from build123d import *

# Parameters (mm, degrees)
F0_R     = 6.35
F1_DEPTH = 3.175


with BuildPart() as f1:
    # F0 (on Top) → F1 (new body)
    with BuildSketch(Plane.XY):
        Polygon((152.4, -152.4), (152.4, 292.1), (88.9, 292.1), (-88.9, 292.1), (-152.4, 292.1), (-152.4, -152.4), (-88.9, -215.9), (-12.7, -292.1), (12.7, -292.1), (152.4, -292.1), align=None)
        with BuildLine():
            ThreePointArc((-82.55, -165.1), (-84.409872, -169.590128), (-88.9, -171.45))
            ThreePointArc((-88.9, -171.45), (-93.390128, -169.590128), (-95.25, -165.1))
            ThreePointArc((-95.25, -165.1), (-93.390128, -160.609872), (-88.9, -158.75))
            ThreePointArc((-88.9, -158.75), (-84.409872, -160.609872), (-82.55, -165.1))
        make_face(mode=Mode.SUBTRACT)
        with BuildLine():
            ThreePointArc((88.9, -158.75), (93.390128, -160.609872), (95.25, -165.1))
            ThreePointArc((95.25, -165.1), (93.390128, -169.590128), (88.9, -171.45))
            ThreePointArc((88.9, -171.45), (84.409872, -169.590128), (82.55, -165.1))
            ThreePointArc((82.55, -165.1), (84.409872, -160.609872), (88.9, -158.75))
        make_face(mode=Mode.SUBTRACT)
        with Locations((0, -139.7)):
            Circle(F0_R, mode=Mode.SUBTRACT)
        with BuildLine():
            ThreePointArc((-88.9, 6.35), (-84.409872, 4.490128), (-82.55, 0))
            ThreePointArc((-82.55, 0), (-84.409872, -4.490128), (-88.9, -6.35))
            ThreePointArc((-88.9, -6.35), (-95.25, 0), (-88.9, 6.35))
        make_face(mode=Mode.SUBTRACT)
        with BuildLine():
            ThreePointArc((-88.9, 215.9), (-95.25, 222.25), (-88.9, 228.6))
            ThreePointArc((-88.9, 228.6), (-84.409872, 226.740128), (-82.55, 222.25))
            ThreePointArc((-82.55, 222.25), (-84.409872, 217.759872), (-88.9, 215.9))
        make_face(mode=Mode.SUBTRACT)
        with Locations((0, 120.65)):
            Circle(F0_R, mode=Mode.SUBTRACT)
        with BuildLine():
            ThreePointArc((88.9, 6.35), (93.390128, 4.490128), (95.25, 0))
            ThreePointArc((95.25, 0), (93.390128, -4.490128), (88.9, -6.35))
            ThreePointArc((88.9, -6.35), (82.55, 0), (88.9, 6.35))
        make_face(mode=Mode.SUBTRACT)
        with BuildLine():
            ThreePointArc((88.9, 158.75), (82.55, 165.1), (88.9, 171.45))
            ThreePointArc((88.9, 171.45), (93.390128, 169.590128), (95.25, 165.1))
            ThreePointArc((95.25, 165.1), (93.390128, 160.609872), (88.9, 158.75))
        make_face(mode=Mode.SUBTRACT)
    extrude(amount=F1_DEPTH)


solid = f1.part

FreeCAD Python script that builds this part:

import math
import FreeCAD as App
import Part
import Sketcher
Q = App.Units.Quantity


def add_polygon(sketch, points):
    """Adds a closed chain of lines whose ends are joined by coincident constraints."""
    first, n = sketch.GeometryCount, len(points)
    for a, b in zip(points, points[1:] + points[:1]):
        sketch.addGeometry(Part.LineSegment(App.Vector(*a, 0), App.Vector(*b, 0)), False)
    for i in range(n):
        sketch.addConstraint(Sketcher.Constraint("Coincident", first + i, 2, first + (i + 1) % n, 1))

doc = App.newDocument("Part")
body = doc.addObject("PartDesign::Body", "Body")

# Sketch on XY plane
sketch1 = body.newObject("Sketcher::SketchObject", "Sketch")
sketch1.AttachmentSupport = (doc.getObject("XY_Plane"), [""])
sketch1.MapMode = "FlatFace"
add_polygon(sketch1, [(152, 292), (-152, 292), (-152, -152), (-13, -292), (152, -292)])  # lines 0-4
sketch1.addGeometry(Part.ArcOfCircle(Part.Circle(App.Vector(-89, -165, 0), App.Vector(0, 0, 1), 6), math.radians(0), math.radians(90)), False)  # 5
sketch1.addGeometry(Part.ArcOfCircle(Part.Circle(App.Vector(-89, -165, 0), App.Vector(0, 0, 1), 6), math.radians(-90), math.radians(0)), False)  # 6
sketch1.addGeometry(Part.ArcOfCircle(Part.Circle(App.Vector(-89, -165, 0), App.Vector(0, 0, 1), 6), math.radians(-180), math.radians(-90)), False)  # 7
sketch1.addGeometry(Part.ArcOfCircle(Part.Circle(App.Vector(-89, -165, 0), App.Vector(0, 0, 1), 6), math.radians(90), math.radians(180)), False)  # 8
sketch1.addGeometry(Part.ArcOfCircle(Part.Circle(App.Vector(-89, 0, 0), App.Vector(0, 0, 1), 6), math.radians(90), math.radians(270)), False)  # 9
sketch1.addGeometry(Part.ArcOfCircle(Part.Circle(App.Vector(-89, 0, 0), App.Vector(0, 0, 1), 6), math.radians(0), math.radians(90)), False)  # 10
sketch1.addGeometry(Part.ArcOfCircle(Part.Circle(App.Vector(-89, 0, 0), App.Vector(0, 0, 1), 6), math.radians(-90), math.radians(0)), False)  # 11
sketch1.addGeometry(Part.Circle(App.Vector(0, -140, 0), App.Vector(0, 0, 1), 6), False)  # 12
sketch1.addGeometry(Part.ArcOfCircle(Part.Circle(App.Vector(89, -165, 0), App.Vector(0, 0, 1), 6), math.radians(90), math.radians(180)), False)  # 13
sketch1.addGeometry(Part.ArcOfCircle(Part.Circle(App.Vector(89, -165, 0), App.Vector(0, 0, 1), 6), math.radians(0), math.radians(90)), False)  # 14
sketch1.addGeometry(Part.ArcOfCircle(Part.Circle(App.Vector(89, -165, 0), App.Vector(0, 0, 1), 6), math.radians(-90), math.radians(0)), False)  # 15
sketch1.addGeometry(Part.ArcOfCircle(Part.Circle(App.Vector(89, -165, 0), App.Vector(0, 0, 1), 6), math.radians(-180), math.radians(-90)), False)  # 16
sketch1.addGeometry(Part.ArcOfCircle(Part.Circle(App.Vector(89, 0, 0), App.Vector(0, 0, 1), 6), math.radians(90), math.radians(270)), False)  # 17
sketch1.addGeometry(Part.ArcOfCircle(Part.Circle(App.Vector(89, 0, 0), App.Vector(0, 0, 1), 6), math.radians(0), math.radians(90)), False)  # 18
sketch1.addGeometry(Part.ArcOfCircle(Part.Circle(App.Vector(89, 0, 0), App.Vector(0, 0, 1), 6), math.radians(-90), math.radians(0)), False)  # 19
sketch1.addGeometry(Part.ArcOfCircle(Part.Circle(App.Vector(-89, 222, 0), App.Vector(0, 0, 1), 6), math.radians(-90), math.radians(0)), False)  # 20
sketch1.addGeometry(Part.ArcOfCircle(Part.Circle(App.Vector(-89, 222, 0), App.Vector(0, 0, 1), 6), math.radians(90), math.radians(270)), False)  # 21
sketch1.addGeometry(Part.ArcOfCircle(Part.Circle(App.Vector(-89, 222, 0), App.Vector(0, 0, 1), 6), math.radians(0), math.radians(90)), False)  # 22
sketch1.addGeometry(Part.Circle(App.Vector(0, 121, 0), App.Vector(0, 0, 1), 6), False)  # 23
sketch1.addGeometry(Part.ArcOfCircle(Part.Circle(App.Vector(89, 165, 0), App.Vector(0, 0, 1), 6), math.radians(-90), math.radians(0)), False)  # 24
sketch1.addGeometry(Part.ArcOfCircle(Part.Circle(App.Vector(89, 165, 0), App.Vector(0, 0, 1), 6), math.radians(90), math.radians(270)), False)  # 25
sketch1.addGeometry(Part.ArcOfCircle(Part.Circle(App.Vector(89, 165, 0), App.Vector(0, 0, 1), 6), math.radians(0), math.radians(90)), False)  # 26
sketch1.addConstraint(Sketcher.Constraint("Tangent", 5, 1, 6, 2))
sketch1.addConstraint(Sketcher.Constraint("Tangent", 6, 1, 7, 2))
sketch1.addConstraint(Sketcher.Constraint("Tangent", 7, 1, 8, 2))
sketch1.addConstraint(Sketcher.Constraint("Tangent", 8, 1, 5, 2))
sketch1.addConstraint(Sketcher.Constraint("Tangent", 9, 1, 10, 2))
sketch1.addConstraint(Sketcher.Constraint("Tangent", 10, 1, 11, 2))
sketch1.addConstraint(Sketcher.Constraint("Tangent", 11, 1, 9, 2))
sketch1.addConstraint(Sketcher.Constraint("Tangent", 13, 1, 14, 2))
sketch1.addConstraint(Sketcher.Constraint("Tangent", 14, 1, 15, 2))
sketch1.addConstraint(Sketcher.Constraint("Tangent", 15, 1, 16, 2))
sketch1.addConstraint(Sketcher.Constraint("Tangent", 16, 1, 13, 2))
sketch1.addConstraint(Sketcher.Constraint("Tangent", 17, 1, 18, 2))
sketch1.addConstraint(Sketcher.Constraint("Tangent", 18, 1, 19, 2))
sketch1.addConstraint(Sketcher.Constraint("Tangent", 19, 1, 17, 2))
sketch1.addConstraint(Sketcher.Constraint("Tangent", 20, 1, 21, 2))
sketch1.addConstraint(Sketcher.Constraint("Tangent", 21, 1, 22, 2))
sketch1.addConstraint(Sketcher.Constraint("Tangent", 22, 1, 20, 2))
sketch1.addConstraint(Sketcher.Constraint("Tangent", 24, 1, 25, 2))
sketch1.addConstraint(Sketcher.Constraint("Tangent", 25, 1, 26, 2))
sketch1.addConstraint(Sketcher.Constraint("Tangent", 26, 1, 24, 2))
sketch1.addConstraint(Sketcher.Constraint("Horizontal", 0))
sketch1.addConstraint(Sketcher.Constraint("Vertical", 1))
sketch1.addConstraint(Sketcher.Constraint("Horizontal", 3))
sketch1.addConstraint(Sketcher.Constraint("Vertical", 4))
sketch1.addConstraint(Sketcher.Constraint("Equal", 5, 6))
sketch1.addConstraint(Sketcher.Constraint("Equal", 8, 9))
sketch1.addConstraint(Sketcher.Constraint("Equal", 11, 12))
sketch1.addConstraint(Sketcher.Constraint("Equal", 12, 13))
sketch1.addConstraint(Sketcher.Constraint("Equal", 13, 14))
sketch1.addConstraint(Sketcher.Constraint("Equal", 16, 17))
sketch1.addConstraint(Sketcher.Constraint("Equal", 19, 20))
sketch1.addConstraint(Sketcher.Constraint("Equal", 22, 23))
sketch1.addConstraint(Sketcher.Constraint("Equal", 23, 24))
sketch1.addConstraint(Sketcher.Constraint("Symmetric", 9, 3, 17, 3, -1, 1))
sketch1.addConstraint(Sketcher.Constraint("Symmetric", 5, 3, 24, 3, -1, 1))
sketch1.addConstraint(Sketcher.Constraint("Symmetric", 0, 2, 3, 2, -1, 1))
sketch1.addConstraint(Sketcher.Constraint("Symmetric", 5, 3, 13, 3, -2))
sketch1.addConstraint(Sketcher.Constraint("Symmetric", 9, 1, 17, 1, -2))
sketch1.addConstraint(Sketcher.Constraint("PointOnObject", 12, 3, -2))
sketch1.addConstraint(Sketcher.Constraint("PointOnObject", 23, 3, -2))
sketch1.addConstraint(Sketcher.Constraint("PointOnObject", 10, 1, -1))
sketch1.addConstraint(Sketcher.Constraint("PointOnObject", 18, 1, -1))
sketch1.addConstraint(Sketcher.Constraint("Horizontal", 16, 3, 5, 1))
sketch1.addConstraint(Sketcher.Constraint("Horizontal", 5, 1, 7, 1))
sketch1.addConstraint(Sketcher.Constraint("Horizontal", 7, 1, 14, 1))
sketch1.addConstraint(Sketcher.Constraint("Horizontal", 14, 1, 16, 1))
sketch1.addConstraint(Sketcher.Constraint("Horizontal", 21, 3, 22, 1))
sketch1.addConstraint(Sketcher.Constraint("Horizontal", 25, 3, 26, 1))
sketch1.addConstraint(Sketcher.Constraint("Vertical", 8, 3, 9, 3))
sketch1.addConstraint(Sketcher.Constraint("Vertical", 11, 3, 20, 3))
sketch1.addConstraint(Sketcher.Constraint("Vertical", 22, 3, 6, 1))
sketch1.addConstraint(Sketcher.Constraint("Vertical", 6, 1, 8, 1))
sketch1.addConstraint(Sketcher.Constraint("Vertical", 8, 1, 9, 1))
sketch1.addConstraint(Sketcher.Constraint("Vertical", 9, 1, 11, 1))
sketch1.addConstraint(Sketcher.Constraint("Vertical", 26, 3, 13, 1))
sketch1.addConstraint(Sketcher.Constraint("Vertical", 13, 1, 15, 1))
sketch1.addConstraint(Sketcher.Constraint("Vertical", 17, 1, 19, 1))
sketch1.addConstraint(Sketcher.Constraint("Vertical", 11, 1, 20, 1))
sketch1.addConstraint(Sketcher.Constraint("Vertical", 20, 1, 21, 1))
sketch1.addConstraint(Sketcher.Constraint("Vertical", 19, 1, 24, 1))
sketch1.addConstraint(Sketcher.Constraint("Vertical", 24, 1, 25, 1))
sketch1.addConstraint(Sketcher.Constraint("Diameter", 12, Q("0.5 in")))
sketch1.addConstraint(Sketcher.Constraint("DistanceX", 0, 2, 0, 1, Q("12 in")))
sketch1.addConstraint(Sketcher.Constraint("DistanceY", 4, 1, 4, 2, Q("23 in")))
sketch1.addConstraint(Sketcher.Constraint("DistanceX", 3, 1, 3, 2, Q("6.5 in")))
sketch1.addConstraint(Sketcher.Constraint("DistanceY", 1, 2, 1, 1, Q("17.5 in")))
sketch1.addConstraint(Sketcher.Constraint("DistanceY", -1, 1, 21, 1, Q("9 in")))
sketch1.addConstraint(Sketcher.Constraint("DistanceY", 7, 3, 12, 3, Q("1 in")))
sketch1.addConstraint(Sketcher.Constraint("DistanceX", 7, 3, 13, 3, Q("7 in")))
sketch1.addConstraint(Sketcher.Constraint("DistanceY", 23, 3, 22, 3, Q("4 in")))
sketch1.addConstraint(Sketcher.Constraint("DistanceY", 24, 3, 0, 2, Q("5 in")))
pad1 = body.newObject("PartDesign::Pad", "Pad")
pad1.Profile = sketch1
pad1.Length = Q("0.125 in")

doc.recompute()
